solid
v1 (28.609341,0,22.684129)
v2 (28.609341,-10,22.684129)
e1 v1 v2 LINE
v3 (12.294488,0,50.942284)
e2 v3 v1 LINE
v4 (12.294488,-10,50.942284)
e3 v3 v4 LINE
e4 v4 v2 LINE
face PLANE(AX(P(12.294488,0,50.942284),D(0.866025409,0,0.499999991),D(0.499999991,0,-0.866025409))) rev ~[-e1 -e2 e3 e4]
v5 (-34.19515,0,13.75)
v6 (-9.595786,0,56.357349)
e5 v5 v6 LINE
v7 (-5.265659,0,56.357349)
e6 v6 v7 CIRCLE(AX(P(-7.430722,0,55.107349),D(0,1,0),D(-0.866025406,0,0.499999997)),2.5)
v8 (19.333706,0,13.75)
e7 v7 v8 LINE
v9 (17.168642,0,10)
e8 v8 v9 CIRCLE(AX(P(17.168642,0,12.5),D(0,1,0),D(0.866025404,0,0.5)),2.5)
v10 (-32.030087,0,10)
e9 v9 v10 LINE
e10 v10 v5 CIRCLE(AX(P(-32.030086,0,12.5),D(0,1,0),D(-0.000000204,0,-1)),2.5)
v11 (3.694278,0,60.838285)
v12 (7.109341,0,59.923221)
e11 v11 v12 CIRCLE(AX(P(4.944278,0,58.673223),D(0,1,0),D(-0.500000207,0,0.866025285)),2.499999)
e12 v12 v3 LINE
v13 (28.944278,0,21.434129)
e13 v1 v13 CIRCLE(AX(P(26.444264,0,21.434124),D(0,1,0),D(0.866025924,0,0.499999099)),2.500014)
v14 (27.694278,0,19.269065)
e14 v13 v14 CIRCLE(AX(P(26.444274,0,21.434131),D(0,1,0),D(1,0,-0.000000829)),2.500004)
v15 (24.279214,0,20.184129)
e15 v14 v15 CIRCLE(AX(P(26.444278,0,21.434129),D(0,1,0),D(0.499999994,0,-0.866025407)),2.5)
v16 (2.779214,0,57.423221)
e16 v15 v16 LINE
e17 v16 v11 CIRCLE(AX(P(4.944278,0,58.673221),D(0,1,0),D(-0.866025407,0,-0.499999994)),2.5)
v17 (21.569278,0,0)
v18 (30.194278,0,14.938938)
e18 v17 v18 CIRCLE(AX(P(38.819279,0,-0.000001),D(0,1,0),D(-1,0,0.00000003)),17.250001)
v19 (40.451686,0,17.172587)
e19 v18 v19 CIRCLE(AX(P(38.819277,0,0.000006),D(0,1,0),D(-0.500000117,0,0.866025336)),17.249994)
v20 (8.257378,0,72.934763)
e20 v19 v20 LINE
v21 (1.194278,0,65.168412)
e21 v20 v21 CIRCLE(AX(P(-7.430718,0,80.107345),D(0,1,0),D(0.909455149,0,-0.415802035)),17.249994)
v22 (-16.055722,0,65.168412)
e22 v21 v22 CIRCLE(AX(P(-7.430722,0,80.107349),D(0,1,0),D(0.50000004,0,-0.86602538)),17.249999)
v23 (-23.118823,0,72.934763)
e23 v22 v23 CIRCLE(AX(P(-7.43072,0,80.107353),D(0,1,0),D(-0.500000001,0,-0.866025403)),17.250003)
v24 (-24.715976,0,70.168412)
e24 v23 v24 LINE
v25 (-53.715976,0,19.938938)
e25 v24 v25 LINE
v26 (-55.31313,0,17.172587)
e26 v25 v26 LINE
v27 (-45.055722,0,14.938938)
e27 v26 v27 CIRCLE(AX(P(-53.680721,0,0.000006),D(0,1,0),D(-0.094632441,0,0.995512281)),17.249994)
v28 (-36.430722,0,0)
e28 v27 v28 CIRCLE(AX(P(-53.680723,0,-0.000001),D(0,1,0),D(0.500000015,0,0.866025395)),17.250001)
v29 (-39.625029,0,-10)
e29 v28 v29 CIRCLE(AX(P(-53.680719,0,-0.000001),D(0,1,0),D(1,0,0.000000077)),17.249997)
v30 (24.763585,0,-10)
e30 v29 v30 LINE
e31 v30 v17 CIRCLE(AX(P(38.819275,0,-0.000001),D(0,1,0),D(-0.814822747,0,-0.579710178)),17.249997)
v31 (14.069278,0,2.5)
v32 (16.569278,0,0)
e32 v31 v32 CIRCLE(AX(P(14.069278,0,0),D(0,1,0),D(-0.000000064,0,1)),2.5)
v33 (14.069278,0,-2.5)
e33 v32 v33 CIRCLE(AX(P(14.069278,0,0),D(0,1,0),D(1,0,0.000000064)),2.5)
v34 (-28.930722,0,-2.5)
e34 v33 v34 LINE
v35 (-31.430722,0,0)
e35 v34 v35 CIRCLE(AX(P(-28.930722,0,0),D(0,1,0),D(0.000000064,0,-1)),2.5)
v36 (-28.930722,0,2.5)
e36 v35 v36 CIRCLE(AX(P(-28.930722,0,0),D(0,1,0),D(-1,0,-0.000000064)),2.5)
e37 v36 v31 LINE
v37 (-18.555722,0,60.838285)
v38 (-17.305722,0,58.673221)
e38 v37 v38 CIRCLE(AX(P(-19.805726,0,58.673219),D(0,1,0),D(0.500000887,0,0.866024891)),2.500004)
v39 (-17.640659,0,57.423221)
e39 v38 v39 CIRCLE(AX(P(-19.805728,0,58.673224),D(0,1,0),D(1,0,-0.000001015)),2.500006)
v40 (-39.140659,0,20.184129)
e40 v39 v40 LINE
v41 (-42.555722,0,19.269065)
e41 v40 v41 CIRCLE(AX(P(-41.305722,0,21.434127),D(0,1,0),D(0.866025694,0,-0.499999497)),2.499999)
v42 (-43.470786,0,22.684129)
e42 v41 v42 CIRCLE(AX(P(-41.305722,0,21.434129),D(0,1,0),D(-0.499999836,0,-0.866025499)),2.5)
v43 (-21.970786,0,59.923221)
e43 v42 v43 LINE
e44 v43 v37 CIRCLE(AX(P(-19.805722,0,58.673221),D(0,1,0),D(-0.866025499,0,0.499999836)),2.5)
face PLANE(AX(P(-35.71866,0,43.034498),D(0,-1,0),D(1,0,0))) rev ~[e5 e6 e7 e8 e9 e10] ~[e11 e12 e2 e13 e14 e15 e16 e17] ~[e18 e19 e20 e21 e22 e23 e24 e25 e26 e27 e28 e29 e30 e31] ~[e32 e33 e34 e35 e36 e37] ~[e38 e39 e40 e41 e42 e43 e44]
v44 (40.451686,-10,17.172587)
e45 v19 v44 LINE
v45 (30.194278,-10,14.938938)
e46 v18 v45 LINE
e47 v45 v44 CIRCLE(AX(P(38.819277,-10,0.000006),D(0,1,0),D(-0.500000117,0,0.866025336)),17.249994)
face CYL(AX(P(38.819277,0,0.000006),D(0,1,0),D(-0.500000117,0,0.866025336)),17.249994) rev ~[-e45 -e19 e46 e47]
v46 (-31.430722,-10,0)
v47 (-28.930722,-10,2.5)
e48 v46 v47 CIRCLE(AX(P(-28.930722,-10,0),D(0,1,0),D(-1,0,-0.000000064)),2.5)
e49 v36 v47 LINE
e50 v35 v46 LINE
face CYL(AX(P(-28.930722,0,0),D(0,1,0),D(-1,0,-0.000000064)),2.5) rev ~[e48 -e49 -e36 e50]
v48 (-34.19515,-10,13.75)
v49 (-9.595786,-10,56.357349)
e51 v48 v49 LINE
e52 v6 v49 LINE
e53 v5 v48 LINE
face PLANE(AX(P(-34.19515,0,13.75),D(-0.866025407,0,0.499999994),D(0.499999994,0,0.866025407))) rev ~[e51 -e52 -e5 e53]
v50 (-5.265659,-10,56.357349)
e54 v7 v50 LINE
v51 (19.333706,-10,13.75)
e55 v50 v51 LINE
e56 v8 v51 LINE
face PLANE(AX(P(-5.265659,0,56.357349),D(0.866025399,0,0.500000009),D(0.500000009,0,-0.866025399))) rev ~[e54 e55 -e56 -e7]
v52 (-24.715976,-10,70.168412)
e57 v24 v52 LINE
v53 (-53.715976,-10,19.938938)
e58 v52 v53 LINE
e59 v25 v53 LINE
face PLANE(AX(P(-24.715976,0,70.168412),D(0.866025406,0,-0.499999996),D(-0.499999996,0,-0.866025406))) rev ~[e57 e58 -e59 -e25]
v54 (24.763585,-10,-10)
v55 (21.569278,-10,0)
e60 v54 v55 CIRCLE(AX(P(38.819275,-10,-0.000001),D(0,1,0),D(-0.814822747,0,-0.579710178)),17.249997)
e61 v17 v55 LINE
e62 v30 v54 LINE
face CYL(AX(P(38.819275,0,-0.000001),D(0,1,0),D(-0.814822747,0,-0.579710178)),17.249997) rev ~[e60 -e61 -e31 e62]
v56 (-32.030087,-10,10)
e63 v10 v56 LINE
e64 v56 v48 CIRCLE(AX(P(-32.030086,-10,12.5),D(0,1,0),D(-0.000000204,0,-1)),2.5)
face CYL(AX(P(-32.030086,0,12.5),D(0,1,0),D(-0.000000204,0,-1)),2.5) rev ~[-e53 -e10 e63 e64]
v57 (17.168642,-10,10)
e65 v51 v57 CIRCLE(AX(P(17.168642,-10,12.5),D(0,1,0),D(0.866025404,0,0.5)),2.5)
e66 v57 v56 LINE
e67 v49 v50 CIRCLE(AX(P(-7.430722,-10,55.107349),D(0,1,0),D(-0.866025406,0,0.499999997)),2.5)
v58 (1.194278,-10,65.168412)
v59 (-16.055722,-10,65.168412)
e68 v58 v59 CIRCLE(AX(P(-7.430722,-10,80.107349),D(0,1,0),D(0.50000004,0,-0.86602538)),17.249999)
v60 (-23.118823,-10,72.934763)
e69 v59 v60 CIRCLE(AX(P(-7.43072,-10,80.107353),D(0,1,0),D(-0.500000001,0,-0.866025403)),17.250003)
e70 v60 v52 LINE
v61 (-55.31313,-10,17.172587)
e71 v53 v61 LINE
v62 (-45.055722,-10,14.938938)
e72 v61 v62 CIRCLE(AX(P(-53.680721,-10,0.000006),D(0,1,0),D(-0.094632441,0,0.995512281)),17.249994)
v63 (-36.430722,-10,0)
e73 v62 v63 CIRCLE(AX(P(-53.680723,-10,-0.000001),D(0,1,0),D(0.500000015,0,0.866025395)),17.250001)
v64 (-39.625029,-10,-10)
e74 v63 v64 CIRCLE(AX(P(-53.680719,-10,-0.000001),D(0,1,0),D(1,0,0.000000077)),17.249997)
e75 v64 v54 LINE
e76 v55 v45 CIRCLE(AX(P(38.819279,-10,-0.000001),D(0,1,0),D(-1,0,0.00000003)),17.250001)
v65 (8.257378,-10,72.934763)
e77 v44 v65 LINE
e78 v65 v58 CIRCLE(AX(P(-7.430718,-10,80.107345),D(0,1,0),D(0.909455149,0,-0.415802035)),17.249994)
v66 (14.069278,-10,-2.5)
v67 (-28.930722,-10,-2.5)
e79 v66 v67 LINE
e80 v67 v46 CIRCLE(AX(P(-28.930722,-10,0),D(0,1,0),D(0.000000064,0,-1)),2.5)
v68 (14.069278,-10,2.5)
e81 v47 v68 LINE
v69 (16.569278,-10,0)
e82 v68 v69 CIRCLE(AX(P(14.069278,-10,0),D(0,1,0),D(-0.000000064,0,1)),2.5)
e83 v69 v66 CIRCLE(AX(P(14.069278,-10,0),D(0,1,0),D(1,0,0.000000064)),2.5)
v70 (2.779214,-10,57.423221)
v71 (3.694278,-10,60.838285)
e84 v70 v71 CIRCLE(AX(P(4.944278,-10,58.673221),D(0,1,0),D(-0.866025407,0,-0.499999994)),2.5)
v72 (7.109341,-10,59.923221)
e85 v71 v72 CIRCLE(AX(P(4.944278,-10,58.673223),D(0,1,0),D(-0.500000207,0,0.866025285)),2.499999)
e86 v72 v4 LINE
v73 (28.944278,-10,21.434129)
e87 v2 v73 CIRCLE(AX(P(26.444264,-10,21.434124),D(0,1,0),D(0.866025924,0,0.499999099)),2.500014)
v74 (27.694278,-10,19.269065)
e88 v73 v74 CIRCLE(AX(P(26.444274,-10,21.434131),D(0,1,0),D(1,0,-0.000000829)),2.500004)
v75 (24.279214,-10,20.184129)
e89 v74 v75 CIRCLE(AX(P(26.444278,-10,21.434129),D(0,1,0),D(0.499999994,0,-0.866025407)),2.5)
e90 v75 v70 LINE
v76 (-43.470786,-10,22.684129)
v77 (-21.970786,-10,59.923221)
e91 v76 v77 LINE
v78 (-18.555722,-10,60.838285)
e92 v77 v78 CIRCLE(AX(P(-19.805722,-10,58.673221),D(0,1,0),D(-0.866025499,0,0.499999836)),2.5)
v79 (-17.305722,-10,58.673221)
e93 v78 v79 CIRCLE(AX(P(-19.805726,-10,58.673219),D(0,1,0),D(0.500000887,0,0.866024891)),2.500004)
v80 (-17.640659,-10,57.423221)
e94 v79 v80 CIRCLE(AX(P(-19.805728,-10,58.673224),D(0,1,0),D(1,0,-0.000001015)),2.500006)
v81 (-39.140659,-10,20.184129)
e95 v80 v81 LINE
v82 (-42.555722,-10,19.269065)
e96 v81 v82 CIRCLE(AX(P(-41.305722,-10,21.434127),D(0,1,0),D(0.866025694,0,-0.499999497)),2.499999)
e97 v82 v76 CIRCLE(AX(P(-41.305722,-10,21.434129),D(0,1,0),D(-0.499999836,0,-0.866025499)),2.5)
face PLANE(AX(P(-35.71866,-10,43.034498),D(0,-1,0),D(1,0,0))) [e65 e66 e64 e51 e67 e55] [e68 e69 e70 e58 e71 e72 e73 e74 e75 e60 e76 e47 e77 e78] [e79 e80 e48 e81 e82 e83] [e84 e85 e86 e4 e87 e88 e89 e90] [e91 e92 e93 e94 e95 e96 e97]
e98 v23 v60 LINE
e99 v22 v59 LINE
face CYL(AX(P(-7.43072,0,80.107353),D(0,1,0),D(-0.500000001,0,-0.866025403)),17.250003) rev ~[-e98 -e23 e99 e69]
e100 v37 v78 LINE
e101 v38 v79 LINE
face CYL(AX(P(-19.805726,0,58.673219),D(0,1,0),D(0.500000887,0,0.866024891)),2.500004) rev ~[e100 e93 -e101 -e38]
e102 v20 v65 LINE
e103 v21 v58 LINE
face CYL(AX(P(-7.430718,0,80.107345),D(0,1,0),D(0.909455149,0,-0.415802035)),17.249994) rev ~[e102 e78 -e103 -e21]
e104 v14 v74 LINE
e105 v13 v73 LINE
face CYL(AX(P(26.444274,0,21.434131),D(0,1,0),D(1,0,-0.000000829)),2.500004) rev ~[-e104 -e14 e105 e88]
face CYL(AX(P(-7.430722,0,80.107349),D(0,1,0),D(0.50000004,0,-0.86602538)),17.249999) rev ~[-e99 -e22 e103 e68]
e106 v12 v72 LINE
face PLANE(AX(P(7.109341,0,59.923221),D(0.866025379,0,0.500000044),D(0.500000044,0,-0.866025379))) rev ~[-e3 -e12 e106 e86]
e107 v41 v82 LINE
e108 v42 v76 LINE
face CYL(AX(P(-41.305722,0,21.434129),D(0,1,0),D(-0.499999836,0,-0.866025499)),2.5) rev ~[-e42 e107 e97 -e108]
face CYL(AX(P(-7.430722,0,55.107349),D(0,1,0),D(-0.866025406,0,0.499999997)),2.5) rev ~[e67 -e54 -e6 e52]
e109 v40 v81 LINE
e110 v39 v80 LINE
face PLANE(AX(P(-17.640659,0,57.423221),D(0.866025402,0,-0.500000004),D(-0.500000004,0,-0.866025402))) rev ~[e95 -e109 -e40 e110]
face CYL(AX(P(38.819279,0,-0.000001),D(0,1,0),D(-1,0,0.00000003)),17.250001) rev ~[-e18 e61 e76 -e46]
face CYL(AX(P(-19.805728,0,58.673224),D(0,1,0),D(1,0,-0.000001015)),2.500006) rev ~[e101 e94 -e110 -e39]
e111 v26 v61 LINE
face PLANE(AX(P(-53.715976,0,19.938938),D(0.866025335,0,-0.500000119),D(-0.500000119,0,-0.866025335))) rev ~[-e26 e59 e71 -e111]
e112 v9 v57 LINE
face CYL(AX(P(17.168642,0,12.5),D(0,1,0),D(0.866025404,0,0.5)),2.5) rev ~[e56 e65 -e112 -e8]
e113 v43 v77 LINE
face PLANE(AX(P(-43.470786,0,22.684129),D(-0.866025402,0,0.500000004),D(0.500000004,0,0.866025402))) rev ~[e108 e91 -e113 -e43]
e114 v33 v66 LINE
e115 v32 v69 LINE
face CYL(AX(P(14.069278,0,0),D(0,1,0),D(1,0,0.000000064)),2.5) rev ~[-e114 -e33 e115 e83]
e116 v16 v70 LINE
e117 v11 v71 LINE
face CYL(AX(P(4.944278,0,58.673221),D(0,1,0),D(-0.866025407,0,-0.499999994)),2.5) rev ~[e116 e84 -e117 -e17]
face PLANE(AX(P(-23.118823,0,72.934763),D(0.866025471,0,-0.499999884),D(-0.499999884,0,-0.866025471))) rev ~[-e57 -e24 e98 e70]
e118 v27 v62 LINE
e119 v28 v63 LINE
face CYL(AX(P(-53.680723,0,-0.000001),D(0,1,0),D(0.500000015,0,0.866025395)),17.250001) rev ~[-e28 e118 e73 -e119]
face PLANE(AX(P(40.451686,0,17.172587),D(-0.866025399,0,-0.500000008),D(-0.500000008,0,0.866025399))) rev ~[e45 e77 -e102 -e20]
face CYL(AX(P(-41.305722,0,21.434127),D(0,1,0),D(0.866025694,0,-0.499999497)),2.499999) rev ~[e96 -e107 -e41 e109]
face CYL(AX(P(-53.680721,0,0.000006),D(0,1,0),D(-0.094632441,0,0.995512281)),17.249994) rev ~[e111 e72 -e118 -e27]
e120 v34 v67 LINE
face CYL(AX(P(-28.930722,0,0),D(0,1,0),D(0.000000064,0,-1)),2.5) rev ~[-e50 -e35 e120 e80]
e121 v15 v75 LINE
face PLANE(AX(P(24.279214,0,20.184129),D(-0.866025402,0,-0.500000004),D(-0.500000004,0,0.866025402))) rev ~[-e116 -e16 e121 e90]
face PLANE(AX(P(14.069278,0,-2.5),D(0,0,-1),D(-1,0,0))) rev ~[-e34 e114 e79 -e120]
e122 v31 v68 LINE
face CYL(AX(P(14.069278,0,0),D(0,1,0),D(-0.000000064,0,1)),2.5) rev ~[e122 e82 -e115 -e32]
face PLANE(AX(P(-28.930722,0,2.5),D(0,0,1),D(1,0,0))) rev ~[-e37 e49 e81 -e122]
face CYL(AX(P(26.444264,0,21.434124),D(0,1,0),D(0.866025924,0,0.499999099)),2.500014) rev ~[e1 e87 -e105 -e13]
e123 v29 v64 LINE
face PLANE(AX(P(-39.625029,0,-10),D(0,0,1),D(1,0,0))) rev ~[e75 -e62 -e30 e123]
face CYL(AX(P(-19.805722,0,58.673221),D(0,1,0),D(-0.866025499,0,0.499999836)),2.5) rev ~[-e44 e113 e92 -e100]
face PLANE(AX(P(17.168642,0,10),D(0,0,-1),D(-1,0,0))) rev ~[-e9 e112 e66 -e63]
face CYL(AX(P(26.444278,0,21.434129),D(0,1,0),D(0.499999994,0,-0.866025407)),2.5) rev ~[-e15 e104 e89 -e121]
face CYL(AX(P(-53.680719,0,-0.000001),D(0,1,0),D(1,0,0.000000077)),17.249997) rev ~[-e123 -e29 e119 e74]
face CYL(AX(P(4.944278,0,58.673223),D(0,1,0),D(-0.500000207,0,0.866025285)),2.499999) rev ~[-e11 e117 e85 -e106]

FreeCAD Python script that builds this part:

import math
import FreeCAD as App
import Part
import Sketcher
from FreeCAD import Vector
Q = App.Units.Quantity

doc = App.newDocument("Part")
body = doc.addObject("PartDesign::Body", "Body")

sketch1 = body.newObject("Sketcher::SketchObject", "Sketch")
sketch1.AttachmentSupport = (doc.getObject("XZ_Plane"), [""])
sketch1.MapMode = "FlatFace"
sketch1.addGeometry([
    Part.ArcOfCircle(Part.Circle(Vector(-53.7, 0, 0), Vector(0, 0, 1), 17.2), math.radians(60), math.radians(95)),
    Part.ArcOfCircle(Part.Circle(Vector(-53.7, 0, 0), Vector(0, 0, 1), 17.3), math.radians(0), math.radians(60)),
    Part.ArcOfCircle(Part.Circle(Vector(-53.7, 0, 0), Vector(0, 0, 1), 17.2), math.radians(-35), math.radians(0)),
    Part.LineSegment(Vector(-39.6, -10, 0), Vector(24.8, -10, 0)),
    Part.ArcOfCircle(Part.Circle(Vector(38.8, 0, 0), Vector(0, 0, 1), 17.2), math.radians(180), math.radians(215)),
    Part.ArcOfCircle(Part.Circle(Vector(38.8, 0, 0), Vector(0, 0, 1), 17.3), math.radians(120), math.radians(180)),
    Part.ArcOfCircle(Part.Circle(Vector(38.8, 0, 0), Vector(0, 0, 1), 17.2), math.radians(85), math.radians(120)),
    Part.LineSegment(Vector(40.5, 17.2, 0), Vector(8.3, 72.9, 0)),
    Part.ArcOfCircle(Part.Circle(Vector(-7.4, 80.1, 0), Vector(0, 0, 1), 17.2), math.radians(-60), math.radians(-25)),
    Part.ArcOfCircle(Part.Circle(Vector(-7.4, 80.1, 0), Vector(0, 0, 1), 17.2), math.radians(-120), math.radians(-60)),
    Part.ArcOfCircle(Part.Circle(Vector(-7.4, 80.1, 0), Vector(0, 0, 1), 17.3), math.radians(-155), math.radians(-120)),
    Part.LineSegment(Vector(-23.1, 72.9, 0), Vector(-24.7, 70.2, 0)),
    Part.LineSegment(Vector(-24.7, 70.2, 0), Vector(-53.7, 19.9, 0)),
    Part.LineSegment(Vector(-53.7, 19.9, 0), Vector(-55.3, 17.2, 0)),
    Part.ArcOfCircle(Part.Circle(Vector(-28.9, 0, 0), Vector(0, 0, 1), 2.5), math.radians(90), math.radians(180)),
    Part.LineSegment(Vector(-28.9, 2.5, 0), Vector(14.1, 2.5, 0)),
    Part.ArcOfCircle(Part.Circle(Vector(14.1, 0, 0), Vector(0, 0, 1), 2.5), math.radians(0), math.radians(90)),
    Part.ArcOfCircle(Part.Circle(Vector(14.1, 0, 0), Vector(0, 0, 1), 2.5), math.radians(-90), math.radians(0)),
    Part.LineSegment(Vector(14.1, -2.5, 0), Vector(-28.9, -2.5, 0)),
    Part.ArcOfCircle(Part.Circle(Vector(-28.9, 0, 0), Vector(0, 0, 1), 2.5), math.radians(180), math.radians(270)),
    Part.ArcOfCircle(Part.Circle(Vector(4.9, 58.7, 0), Vector(0, 0, 1), 2.5), math.radians(120), math.radians(210)),
    Part.ArcOfCircle(Part.Circle(Vector(4.9, 58.7, 0), Vector(0, 0, 1), 2.5), math.radians(30), math.radians(120)),
    Part.LineSegment(Vector(7.1, 59.9, 0), Vector(12.3, 50.9, 0)),
    Part.LineSegment(Vector(12.3, 50.9, 0), Vector(28.6, 22.7, 0)),
    Part.ArcOfCircle(Part.Circle(Vector(26.4, 21.4, 0), Vector(0, 0, 1), 2.5), math.radians(0), math.radians(30)),
    Part.ArcOfCircle(Part.Circle(Vector(26.4, 21.4, 0), Vector(0, 0, 1), 2.5), math.radians(-60), math.radians(0)),
    Part.ArcOfCircle(Part.Circle(Vector(26.4, 21.4, 0), Vector(0, 0, 1), 2.5), math.radians(-150), math.radians(-60)),
    Part.LineSegment(Vector(24.3, 20.2, 0), Vector(2.8, 57.4, 0)),
    Part.ArcOfCircle(Part.Circle(Vector(-32, 12.5, 0), Vector(0, 0, 1), 2.5), math.radians(150), math.radians(270)),
    Part.LineSegment(Vector(-34.2, 13.8, 0), Vector(-9.6, 56.4, 0)),
    Part.ArcOfCircle(Part.Circle(Vector(-7.4, 55.1, 0), Vector(0, 0, 1), 2.5), math.radians(30), math.radians(150)),
    Part.LineSegment(Vector(-5.3, 56.4, 0), Vector(19.3, 13.8, 0)),
    Part.ArcOfCircle(Part.Circle(Vector(17.2, 12.5, 0), Vector(0, 0, 1), 2.5), math.radians(-90), math.radians(30)),
    Part.LineSegment(Vector(17.2, 10, 0), Vector(-32, 10, 0)),
    Part.ArcOfCircle(Part.Circle(Vector(-41.3, 21.4, 0), Vector(0, 0, 1), 2.5), math.radians(150), math.radians(240)),
    Part.LineSegment(Vector(-43.5, 22.7, 0), Vector(-22, 59.9, 0)),
    Part.ArcOfCircle(Part.Circle(Vector(-19.8, 58.7, 0), Vector(0, 0, 1), 2.5), math.radians(60), math.radians(150)),
    Part.ArcOfCircle(Part.Circle(Vector(-19.8, 58.7, 0), Vector(0, 0, 1), 2.5), math.radians(0), math.radians(60)),
    Part.ArcOfCircle(Part.Circle(Vector(-19.8, 58.7, 0), Vector(0, 0, 1), 2.5), math.radians(-30), math.radians(0)),
    Part.LineSegment(Vector(-17.6, 57.4, 0), Vector(-39.1, 20.2, 0)),
    Part.ArcOfCircle(Part.Circle(Vector(-41.3, 21.4, 0), Vector(0, 0, 1), 2.5), math.radians(-120), math.radians(-30)),
], False)
sketch1.addConstraint([
    Sketcher.Constraint("Tangent", 0, 1, 1, 2),
    Sketcher.Constraint("Tangent", 1, 1, 2, 2),
    Sketcher.Constraint("Coincident", 2, 1, 3, 1),
    Sketcher.Constraint("Coincident", 3, 2, 4, 2),
    Sketcher.Constraint("Tangent", 4, 1, 5, 2),
    Sketcher.Constraint("Tangent", 5, 1, 6, 2),
    Sketcher.Constraint("Coincident", 6, 1, 7, 1),
    Sketcher.Constraint("Coincident", 7, 2, 8, 2),
    Sketcher.Constraint("Tangent", 8, 1, 9, 2),
    Sketcher.Constraint("Tangent", 9, 1, 10, 2),
    Sketcher.Constraint("Coincident", 10, 1, 11, 1),
    Sketcher.Constraint("Coincident", 11, 2, 12, 1),
    Sketcher.Constraint("Coincident", 12, 2, 13, 1),
    Sketcher.Constraint("Coincident", 13, 2, 0, 2),
    Sketcher.Constraint("Tangent", 14, 1, 15, 1),
    Sketcher.Constraint("Tangent", 15, 2, 16, 2),
    Sketcher.Constraint("Tangent", 16, 1, 17, 2),
    Sketcher.Constraint("Tangent", 17, 1, 18, 1),
    Sketcher.Constraint("Tangent", 18, 2, 19, 2),
    Sketcher.Constraint("Tangent", 19, 1, 14, 2),
    Sketcher.Constraint("Tangent", 20, 1, 21, 2),
    Sketcher.Constraint("Tangent", 21, 1, 22, 1),
    Sketcher.Constraint("Coincident", 22, 2, 23, 1),
    Sketcher.Constraint("Tangent", 23, 2, 24, 2),
    Sketcher.Constraint("Coincident", 24, 1, 25, 2),
    Sketcher.Constraint("Tangent", 25, 1, 26, 2),
    Sketcher.Constraint("Tangent", 26, 1, 27, 1),
    Sketcher.Constraint("Tangent", 27, 2, 20, 2),
    Sketcher.Constraint("Tangent", 28, 1, 29, 1),
    Sketcher.Constraint("Tangent", 29, 2, 30, 2),
    Sketcher.Constraint("Tangent", 30, 1, 31, 1),
    Sketcher.Constraint("Tangent", 31, 2, 32, 2),
    Sketcher.Constraint("Tangent", 32, 1, 33, 1),
    Sketcher.Constraint("Tangent", 33, 2, 28, 2),
    Sketcher.Constraint("Tangent", 34, 1, 35, 1),
    Sketcher.Constraint("Tangent", 35, 2, 36, 2),
    Sketcher.Constraint("Tangent", 36, 1, 37, 2),
    Sketcher.Constraint("Tangent", 37, 1, 38, 2),
    Sketcher.Constraint("Tangent", 38, 1, 39, 1),
    Sketcher.Constraint("Tangent", 39, 2, 40, 2),
    Sketcher.Constraint("Tangent", 40, 1, 34, 2),
    Sketcher.Constraint("Horizontal", 3),
    Sketcher.Constraint("Horizontal", 15),
    Sketcher.Constraint("Horizontal", 18),
    Sketcher.Constraint("Horizontal", 33),
    Sketcher.Constraint("Coincident", 2, 3, 0, 3),
    Sketcher.Constraint("Coincident", 6, 3, 4, 3),
    Sketcher.Constraint("Coincident", 10, 3, 8, 3),
    Sketcher.Constraint("Coincident", 38, 3, 36, 3),
    Sketcher.Constraint("Equal", 2, 4),
    Sketcher.Constraint("Equal", 6, 8),
    Sketcher.Constraint("Equal", 14, 16),
    Sketcher.Constraint("Equal", 16, 17),
    Sketcher.Constraint("Equal", 19, 20),
    Sketcher.Constraint("Equal", 20, 21),
    Sketcher.Constraint("Equal", 21, 26),
    Sketcher.Constraint("Equal", 26, 28),
    Sketcher.Constraint("Equal", 28, 30),
    Sketcher.Constraint("Equal", 30, 32),
    Sketcher.Constraint("Equal", 32, 34),
    Sketcher.Constraint("Equal", 34, 36),
    Sketcher.Constraint("Equal", 25, 37),
    Sketcher.Constraint("Equal", 36, 40),
    Sketcher.Constraint("PointOnObject", 1, 3, -1),
    Sketcher.Constraint("PointOnObject", 4, 3, -1),
    Sketcher.Constraint("PointOnObject", 14, 3, -1),
    Sketcher.Constraint("PointOnObject", 1, 1, -1),
    Sketcher.Constraint("PointOnObject", 4, 1, -1),
    Sketcher.Constraint("PointOnObject", 16, 1, -1),
    Sketcher.Constraint("PointOnObject", 19, 1, -1),
    Sketcher.Constraint("Parallel", 11, 12),
    Sketcher.Constraint("Parallel", 12, 13),
    Sketcher.Constraint("Parallel", 7, 22),
    Sketcher.Constraint("Parallel", 22, 23),
    Sketcher.Constraint("Parallel", 23, 27),
    Sketcher.Constraint("Parallel", 13, 29),
    Sketcher.Constraint("Parallel", 27, 31),
    Sketcher.Constraint("Parallel", 29, 35),
    Sketcher.Constraint("Horizontal", 26, 3, 34, 3),
    Sketcher.Constraint("Horizontal", 21, 3, 36, 3),
    Sketcher.Constraint("Horizontal", 0, 1, 5, 1),
    Sketcher.Constraint("Horizontal", 8, 1, 9, 1),
    Sketcher.Constraint("Horizontal", 7, 2, 10, 1),
    Sketcher.Constraint("Horizontal", 6, 1, 13, 2),
    Sketcher.Constraint("Horizontal", 40, 3, 24, 1),
    Sketcher.Constraint("Horizontal", 29, 2, 30, 1),
    Sketcher.Constraint("Horizontal", 23, 2, 34, 1),
    Sketcher.Constraint("Horizontal", 20, 1, 36, 1),
    Sketcher.Constraint("Horizontal", 36, 3, 37, 1),
    Sketcher.Constraint("Horizontal", 25, 1, 40, 1),
    Sketcher.Constraint("Vertical", 9, 3, 30, 3),
    Sketcher.Constraint("Equal", 11, 13),
    Sketcher.Constraint("Radius", 14, Q("2.5 mm")),
    Sketcher.Constraint("DistanceX", 15, 1, 15, 2, Q("43 mm")),
    Sketcher.Constraint("Angle", 7, Q("120.000001 deg")),
    Sketcher.Constraint("Radius", 1, Q("17.250001 mm")),
    Sketcher.Constraint("Distance", 12, Q("58.000001 mm")),
    Sketcher.Constraint("Distance", 27, Q("43 mm")),
    Sketcher.Constraint("DistanceY", 2, 1, -1, 1, Q("10 mm")),
    Sketcher.Constraint("DistanceY", -1, 1, 32, 1, Q("10 mm")),
    Sketcher.Constraint("DistanceX", 33, 2, 33, 1, Q("49.198729 mm")),
    Sketcher.Constraint("DistanceX", 3, 1, 3, 2, Q("64.388614 mm")),
    Sketcher.Constraint("DistanceX", 0, 3, -1, 1, Q("53.680721 mm")),
    Sketcher.Constraint("DistanceY", -1, 1, 9, 3, Q("80.107349 mm")),
    Sketcher.Constraint("DistanceX", -1, 1, 16, 3, Q("14.069278 mm")),
    Sketcher.Constraint("DistanceY", -1, 1, 20, 3, Q("58.673221 mm")),
    Sketcher.Constraint("DistanceX", 38, 3, -1, 1, Q("19.805728 mm")),
    Sketcher.Constraint("DistanceY", -1, 1, 5, 1, Q("14.938938 mm")),
    Sketcher.Constraint("DistanceX", -1, 1, 8, 1, Q("1.194278 mm")),
    Sketcher.Constraint("DistanceY", -1, 1, 12, 2, Q("19.938938 mm")),
    Sketcher.Constraint("DistanceX", -1, 1, 21, 1, Q("7.109341 mm")),
    Sketcher.Constraint("DistanceX", -1, 1, 25, 1, Q("27.694278 mm")),
    Sketcher.Constraint("DistanceX", 36, 1, -1, 1, Q("18.555722 mm")),
    Sketcher.Constraint("Distance", 22, Q("10.370293 mm")),
])
pad1 = body.newObject("PartDesign::Pad", "Pad")
pad1.Profile = sketch1
pad1.Length = 10

doc.recompute()
